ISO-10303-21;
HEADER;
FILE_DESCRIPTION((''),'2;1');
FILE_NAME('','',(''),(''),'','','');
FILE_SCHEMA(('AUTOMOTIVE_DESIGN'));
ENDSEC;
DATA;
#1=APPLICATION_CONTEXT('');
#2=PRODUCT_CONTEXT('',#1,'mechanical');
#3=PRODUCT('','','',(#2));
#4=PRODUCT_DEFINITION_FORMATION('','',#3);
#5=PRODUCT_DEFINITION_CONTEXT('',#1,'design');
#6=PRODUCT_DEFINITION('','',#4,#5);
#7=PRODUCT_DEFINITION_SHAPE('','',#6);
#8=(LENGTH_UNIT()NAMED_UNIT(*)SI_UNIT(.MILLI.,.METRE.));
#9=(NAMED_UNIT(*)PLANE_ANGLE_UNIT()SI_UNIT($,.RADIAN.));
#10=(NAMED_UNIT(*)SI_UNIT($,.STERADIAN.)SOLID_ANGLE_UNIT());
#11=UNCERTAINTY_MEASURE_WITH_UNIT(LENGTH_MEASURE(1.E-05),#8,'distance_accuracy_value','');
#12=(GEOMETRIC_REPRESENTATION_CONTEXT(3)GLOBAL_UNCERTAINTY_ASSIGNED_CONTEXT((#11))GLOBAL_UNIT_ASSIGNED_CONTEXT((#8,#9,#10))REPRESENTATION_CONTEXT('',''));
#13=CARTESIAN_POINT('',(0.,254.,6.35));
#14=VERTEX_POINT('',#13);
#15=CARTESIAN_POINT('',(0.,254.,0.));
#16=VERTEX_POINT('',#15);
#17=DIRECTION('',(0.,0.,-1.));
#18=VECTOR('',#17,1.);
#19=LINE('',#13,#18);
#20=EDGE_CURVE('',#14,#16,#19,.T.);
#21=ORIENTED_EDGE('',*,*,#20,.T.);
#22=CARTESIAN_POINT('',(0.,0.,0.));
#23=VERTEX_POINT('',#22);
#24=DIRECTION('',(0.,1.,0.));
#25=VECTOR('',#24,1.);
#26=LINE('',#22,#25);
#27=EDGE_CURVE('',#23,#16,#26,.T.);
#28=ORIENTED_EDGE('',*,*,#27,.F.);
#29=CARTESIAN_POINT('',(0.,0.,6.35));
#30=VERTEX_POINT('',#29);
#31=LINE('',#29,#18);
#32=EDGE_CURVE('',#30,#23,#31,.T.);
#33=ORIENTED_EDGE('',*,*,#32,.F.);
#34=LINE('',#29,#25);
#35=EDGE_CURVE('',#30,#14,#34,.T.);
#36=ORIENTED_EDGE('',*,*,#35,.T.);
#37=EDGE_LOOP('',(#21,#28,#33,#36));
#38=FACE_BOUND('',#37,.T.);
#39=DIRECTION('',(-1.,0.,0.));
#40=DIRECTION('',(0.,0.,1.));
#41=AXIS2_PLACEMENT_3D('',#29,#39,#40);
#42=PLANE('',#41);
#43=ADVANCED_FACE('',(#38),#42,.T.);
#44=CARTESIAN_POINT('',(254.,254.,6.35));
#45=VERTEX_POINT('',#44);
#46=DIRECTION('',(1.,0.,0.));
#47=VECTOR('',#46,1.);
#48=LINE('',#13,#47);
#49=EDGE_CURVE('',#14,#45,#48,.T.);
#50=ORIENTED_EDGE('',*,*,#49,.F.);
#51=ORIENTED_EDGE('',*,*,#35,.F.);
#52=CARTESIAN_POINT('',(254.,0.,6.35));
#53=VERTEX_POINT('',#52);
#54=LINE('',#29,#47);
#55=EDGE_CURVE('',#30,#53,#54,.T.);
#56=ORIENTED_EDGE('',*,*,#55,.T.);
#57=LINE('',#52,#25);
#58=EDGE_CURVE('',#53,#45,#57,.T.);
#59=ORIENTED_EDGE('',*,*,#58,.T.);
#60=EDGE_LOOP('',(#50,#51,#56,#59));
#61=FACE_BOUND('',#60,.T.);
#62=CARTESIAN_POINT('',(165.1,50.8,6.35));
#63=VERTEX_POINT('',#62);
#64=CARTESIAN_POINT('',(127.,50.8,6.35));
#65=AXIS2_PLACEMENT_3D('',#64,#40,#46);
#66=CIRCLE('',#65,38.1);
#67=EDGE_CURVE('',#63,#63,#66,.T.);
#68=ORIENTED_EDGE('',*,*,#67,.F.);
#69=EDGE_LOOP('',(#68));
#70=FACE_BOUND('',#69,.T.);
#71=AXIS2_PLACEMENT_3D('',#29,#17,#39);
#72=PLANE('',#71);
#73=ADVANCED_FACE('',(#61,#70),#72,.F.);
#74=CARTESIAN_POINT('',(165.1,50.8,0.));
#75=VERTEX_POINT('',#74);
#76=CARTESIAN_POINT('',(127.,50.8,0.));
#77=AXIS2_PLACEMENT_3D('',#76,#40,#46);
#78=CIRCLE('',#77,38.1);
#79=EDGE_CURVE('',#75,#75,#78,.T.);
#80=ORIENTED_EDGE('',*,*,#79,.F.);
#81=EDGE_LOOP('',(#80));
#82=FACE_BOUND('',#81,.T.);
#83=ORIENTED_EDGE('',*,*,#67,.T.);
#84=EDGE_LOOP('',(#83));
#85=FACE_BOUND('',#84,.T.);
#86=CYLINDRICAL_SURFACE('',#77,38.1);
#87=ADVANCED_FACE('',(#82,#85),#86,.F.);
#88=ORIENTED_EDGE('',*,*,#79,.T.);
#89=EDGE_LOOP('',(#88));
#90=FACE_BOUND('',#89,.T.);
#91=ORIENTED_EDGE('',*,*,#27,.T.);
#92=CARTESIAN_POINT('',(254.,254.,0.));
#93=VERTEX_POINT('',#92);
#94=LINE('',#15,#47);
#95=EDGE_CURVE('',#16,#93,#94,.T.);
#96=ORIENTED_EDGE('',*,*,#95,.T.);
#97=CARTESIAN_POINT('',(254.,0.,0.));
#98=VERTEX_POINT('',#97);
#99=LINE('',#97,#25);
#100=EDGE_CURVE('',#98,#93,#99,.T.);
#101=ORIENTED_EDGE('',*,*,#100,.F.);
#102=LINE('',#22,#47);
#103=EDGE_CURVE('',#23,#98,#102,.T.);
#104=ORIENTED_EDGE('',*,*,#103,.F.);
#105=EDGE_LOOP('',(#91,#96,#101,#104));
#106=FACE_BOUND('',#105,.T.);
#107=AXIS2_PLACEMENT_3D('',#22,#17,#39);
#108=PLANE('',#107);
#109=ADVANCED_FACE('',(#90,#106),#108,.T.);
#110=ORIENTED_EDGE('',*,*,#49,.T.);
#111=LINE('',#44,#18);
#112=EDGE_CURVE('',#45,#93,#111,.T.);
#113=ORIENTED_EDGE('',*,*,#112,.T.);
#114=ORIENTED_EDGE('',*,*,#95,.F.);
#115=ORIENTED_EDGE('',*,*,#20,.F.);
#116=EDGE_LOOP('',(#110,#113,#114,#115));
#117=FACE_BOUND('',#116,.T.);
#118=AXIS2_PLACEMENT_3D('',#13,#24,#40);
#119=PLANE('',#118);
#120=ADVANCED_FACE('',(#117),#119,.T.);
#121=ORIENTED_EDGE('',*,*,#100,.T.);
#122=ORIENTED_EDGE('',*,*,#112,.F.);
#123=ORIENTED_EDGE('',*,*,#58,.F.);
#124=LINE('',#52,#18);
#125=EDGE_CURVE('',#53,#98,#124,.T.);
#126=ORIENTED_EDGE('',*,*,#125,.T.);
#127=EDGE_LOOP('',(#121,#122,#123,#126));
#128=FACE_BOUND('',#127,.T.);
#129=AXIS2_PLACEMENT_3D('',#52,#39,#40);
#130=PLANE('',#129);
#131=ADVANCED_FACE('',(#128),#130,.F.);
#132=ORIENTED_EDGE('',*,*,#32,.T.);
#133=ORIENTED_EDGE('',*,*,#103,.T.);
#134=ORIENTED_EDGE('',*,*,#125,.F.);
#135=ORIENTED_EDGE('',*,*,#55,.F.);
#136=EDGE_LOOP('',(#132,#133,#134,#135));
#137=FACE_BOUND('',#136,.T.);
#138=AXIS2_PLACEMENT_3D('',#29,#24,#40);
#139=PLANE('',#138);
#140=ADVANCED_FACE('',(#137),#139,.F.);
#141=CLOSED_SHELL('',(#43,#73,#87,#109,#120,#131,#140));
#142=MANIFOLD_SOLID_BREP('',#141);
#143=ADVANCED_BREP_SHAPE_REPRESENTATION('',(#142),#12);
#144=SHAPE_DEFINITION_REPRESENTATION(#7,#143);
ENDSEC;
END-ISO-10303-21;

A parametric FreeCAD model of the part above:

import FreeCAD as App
import Part
import Sketcher
Q = App.Units.Quantity

doc = App.newDocument("Part")
body = doc.addObject("PartDesign::Body", "Body")

# Sketch on XY plane
sketch1 = body.newObject("Sketcher::SketchObject", "Sketch")
sketch1.AttachmentSupport = (doc.getObject("XY_Plane"), [""])
sketch1.MapMode = "FlatFace"
sketch1.addGeometry(Part.LineSegment(App.Vector(0, 254, 0), App.Vector(0, 0, 0)), False)
sketch1.addGeometry(Part.LineSegment(App.Vector(0, 0, 0), App.Vector(254, 0, 0)), False)
sketch1.addGeometry(Part.LineSegment(App.Vector(254, 0, 0), App.Vector(254, 254, 0)), False)
sketch1.addGeometry(Part.LineSegment(App.Vector(254, 254, 0), App.Vector(0, 254, 0)), False)
sketch1.addConstraint(Sketcher.Constraint("Coincident", 0, 2, 1, 1))
sketch1.addConstraint(Sketcher.Constraint("Coincident", 1, 2, 2, 1))
sketch1.addConstraint(Sketcher.Constraint("Coincident", 2, 2, 3, 1))
sketch1.addConstraint(Sketcher.Constraint("Coincident", 3, 2, 0, 1))
sketch1.addConstraint(Sketcher.Constraint("Vertical", 0))
sketch1.addConstraint(Sketcher.Constraint("Horizontal", 1))
sketch1.addConstraint(Sketcher.Constraint("Vertical", 2))
sketch1.addConstraint(Sketcher.Constraint("Horizontal", 3))
sketch1.addConstraint(Sketcher.Constraint("Coincident", 0, 2, -1, 1))
sketch1.addConstraint(Sketcher.Constraint("Equal", 3, 0))
sketch1.addConstraint(Sketcher.Constraint("DistanceX", 1, 1, 1, 2, Q("10 in")))
pad1 = body.newObject("PartDesign::Pad", "Pad")
pad1.Profile = sketch1
pad1.Length = Q("0.25 in")

# Sketch on XY plane
sketch2 = body.newObject("Sketcher::SketchObject", "Sketch001")
sketch2.AttachmentSupport = (doc.getObject("XY_Plane"), [""])
sketch2.MapMode = "FlatFace"
sketch2.AttachmentOffset = App.Placement(App.Vector(0, 0, 0.25 * 25.4), App.Rotation())
sketch2.addGeometry(Part.Circle(App.Vector(127, 51, 0), App.Vector(0, 0, 1), 38), False)
sketch2.addConstraint(Sketcher.Constraint("Diameter", 0, Q("3 in")))
sketch2.addConstraint(Sketcher.Constraint("DistanceX", -1, 1, 0, 3, Q("5 in")))
sketch2.addConstraint(Sketcher.Constraint("DistanceY", -1, 1, 0, 3, Q("2 in")))
pocket1 = body.newObject("PartDesign::Pocket", "Pocket")
pocket1.Profile = sketch2
pocket1.Type = "ThroughAll"

doc.recompute()
